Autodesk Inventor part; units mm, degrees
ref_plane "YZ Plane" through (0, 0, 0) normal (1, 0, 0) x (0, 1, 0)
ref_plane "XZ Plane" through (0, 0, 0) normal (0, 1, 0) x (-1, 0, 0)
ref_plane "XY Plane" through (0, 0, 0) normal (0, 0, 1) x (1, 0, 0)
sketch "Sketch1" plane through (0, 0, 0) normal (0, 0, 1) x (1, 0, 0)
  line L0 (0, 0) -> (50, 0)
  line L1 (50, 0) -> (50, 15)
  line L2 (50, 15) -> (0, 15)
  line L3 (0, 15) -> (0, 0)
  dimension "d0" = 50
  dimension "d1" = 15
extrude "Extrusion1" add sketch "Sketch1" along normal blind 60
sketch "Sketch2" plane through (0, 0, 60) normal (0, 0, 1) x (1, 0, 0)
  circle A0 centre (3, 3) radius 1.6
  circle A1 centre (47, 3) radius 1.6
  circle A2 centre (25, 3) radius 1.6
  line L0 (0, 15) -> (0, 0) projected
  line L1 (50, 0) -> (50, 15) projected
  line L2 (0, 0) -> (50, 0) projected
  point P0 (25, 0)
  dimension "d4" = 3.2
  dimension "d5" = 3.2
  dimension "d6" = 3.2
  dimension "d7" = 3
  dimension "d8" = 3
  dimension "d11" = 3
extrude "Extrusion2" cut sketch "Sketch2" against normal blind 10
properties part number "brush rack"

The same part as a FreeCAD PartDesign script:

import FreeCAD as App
import Part
import Sketcher

doc = App.newDocument("Part")
body = doc.addObject("PartDesign::Body", "Body")

# Sketch on XY plane
sketch1 = doc.addObject("Sketcher::SketchObject", "Sketch")
body.addObject(sketch1)
sketch1.AttachmentSupport = (doc.XY_Plane, [""])
sketch1.MapMode = "FlatFace"
sketch1.addGeometry([
    Part.LineSegment(App.Vector(0, 15, 0), App.Vector(0, 0, 0)),
    Part.LineSegment(App.Vector(0, 0, 0), App.Vector(50, 0, 0)),
    Part.LineSegment(App.Vector(50, 0, 0), App.Vector(50, 15, 0)),
    Part.LineSegment(App.Vector(50, 15, 0), App.Vector(0, 15, 0)),
], False)
sketch1.addConstraint([
    Sketcher.Constraint("Coincident", 0, 2, 1, 1),
    Sketcher.Constraint("Coincident", 1, 2, 2, 1),
    Sketcher.Constraint("Coincident", 2, 2, 3, 1),
    Sketcher.Constraint("Coincident", 3, 2, 0, 1),
    Sketcher.Constraint("Vertical", 0),
    Sketcher.Constraint("Horizontal", 1),
    Sketcher.Constraint("Vertical", 2),
    Sketcher.Constraint("Horizontal", 3),
    Sketcher.Constraint("Coincident", 0, 2, -1, 1),
    Sketcher.Constraint("DistanceX", 1, 1, 1, 2, 50.0),
    Sketcher.Constraint("DistanceY", 0, 2, 0, 1, 15.0),
])
pad1 = doc.addObject("PartDesign::Pad", "Pad")
body.addObject(pad1)
pad1.Profile = sketch1
pad1.Length = 60

# Sketch on XY plane
sketch2 = doc.addObject("Sketcher::SketchObject", "Sketch001")
body.addObject(sketch2)
sketch2.AttachmentSupport = (doc.XY_Plane, [""])
sketch2.MapMode = "FlatFace"
sketch2.AttachmentOffset = App.Placement(App.Vector(0, 0, 60), App.Rotation())
sketch2.addGeometry([
    Part.Circle(App.Vector(3, 3, 0), App.Vector(0, 0, 1), 1.6),
    Part.Circle(App.Vector(47, 3, 0), App.Vector(0, 0, 1), 1.6),
    Part.Circle(App.Vector(25, 3, 0), App.Vector(0, 0, 1), 1.6),
], False)
sketch2.addConstraint([
    Sketcher.Constraint("Equal", 0, 1),
    Sketcher.Constraint("Equal", 1, 2),
    Sketcher.Constraint("Horizontal", 0, 3, 1, 3),
    Sketcher.Constraint("Horizontal", 1, 3, 2, 3),
    Sketcher.Constraint("Diameter", 0, 3.2),
    Sketcher.Constraint("DistanceX", -1, 1, 0, 3, 3.0),
    Sketcher.Constraint("DistanceY", -1, 1, 0, 3, 3.0),
    Sketcher.Constraint("DistanceX", -1, 1, 1, 3, 47.0),
    Sketcher.Constraint("DistanceX", -1, 1, 2, 3, 25.0),
])
pocket1 = doc.addObject("PartDesign::Pocket", "Pocket")
body.addObject(pocket1)
pocket1.Profile = sketch2
pocket1.Length = 10

doc.recompute()
